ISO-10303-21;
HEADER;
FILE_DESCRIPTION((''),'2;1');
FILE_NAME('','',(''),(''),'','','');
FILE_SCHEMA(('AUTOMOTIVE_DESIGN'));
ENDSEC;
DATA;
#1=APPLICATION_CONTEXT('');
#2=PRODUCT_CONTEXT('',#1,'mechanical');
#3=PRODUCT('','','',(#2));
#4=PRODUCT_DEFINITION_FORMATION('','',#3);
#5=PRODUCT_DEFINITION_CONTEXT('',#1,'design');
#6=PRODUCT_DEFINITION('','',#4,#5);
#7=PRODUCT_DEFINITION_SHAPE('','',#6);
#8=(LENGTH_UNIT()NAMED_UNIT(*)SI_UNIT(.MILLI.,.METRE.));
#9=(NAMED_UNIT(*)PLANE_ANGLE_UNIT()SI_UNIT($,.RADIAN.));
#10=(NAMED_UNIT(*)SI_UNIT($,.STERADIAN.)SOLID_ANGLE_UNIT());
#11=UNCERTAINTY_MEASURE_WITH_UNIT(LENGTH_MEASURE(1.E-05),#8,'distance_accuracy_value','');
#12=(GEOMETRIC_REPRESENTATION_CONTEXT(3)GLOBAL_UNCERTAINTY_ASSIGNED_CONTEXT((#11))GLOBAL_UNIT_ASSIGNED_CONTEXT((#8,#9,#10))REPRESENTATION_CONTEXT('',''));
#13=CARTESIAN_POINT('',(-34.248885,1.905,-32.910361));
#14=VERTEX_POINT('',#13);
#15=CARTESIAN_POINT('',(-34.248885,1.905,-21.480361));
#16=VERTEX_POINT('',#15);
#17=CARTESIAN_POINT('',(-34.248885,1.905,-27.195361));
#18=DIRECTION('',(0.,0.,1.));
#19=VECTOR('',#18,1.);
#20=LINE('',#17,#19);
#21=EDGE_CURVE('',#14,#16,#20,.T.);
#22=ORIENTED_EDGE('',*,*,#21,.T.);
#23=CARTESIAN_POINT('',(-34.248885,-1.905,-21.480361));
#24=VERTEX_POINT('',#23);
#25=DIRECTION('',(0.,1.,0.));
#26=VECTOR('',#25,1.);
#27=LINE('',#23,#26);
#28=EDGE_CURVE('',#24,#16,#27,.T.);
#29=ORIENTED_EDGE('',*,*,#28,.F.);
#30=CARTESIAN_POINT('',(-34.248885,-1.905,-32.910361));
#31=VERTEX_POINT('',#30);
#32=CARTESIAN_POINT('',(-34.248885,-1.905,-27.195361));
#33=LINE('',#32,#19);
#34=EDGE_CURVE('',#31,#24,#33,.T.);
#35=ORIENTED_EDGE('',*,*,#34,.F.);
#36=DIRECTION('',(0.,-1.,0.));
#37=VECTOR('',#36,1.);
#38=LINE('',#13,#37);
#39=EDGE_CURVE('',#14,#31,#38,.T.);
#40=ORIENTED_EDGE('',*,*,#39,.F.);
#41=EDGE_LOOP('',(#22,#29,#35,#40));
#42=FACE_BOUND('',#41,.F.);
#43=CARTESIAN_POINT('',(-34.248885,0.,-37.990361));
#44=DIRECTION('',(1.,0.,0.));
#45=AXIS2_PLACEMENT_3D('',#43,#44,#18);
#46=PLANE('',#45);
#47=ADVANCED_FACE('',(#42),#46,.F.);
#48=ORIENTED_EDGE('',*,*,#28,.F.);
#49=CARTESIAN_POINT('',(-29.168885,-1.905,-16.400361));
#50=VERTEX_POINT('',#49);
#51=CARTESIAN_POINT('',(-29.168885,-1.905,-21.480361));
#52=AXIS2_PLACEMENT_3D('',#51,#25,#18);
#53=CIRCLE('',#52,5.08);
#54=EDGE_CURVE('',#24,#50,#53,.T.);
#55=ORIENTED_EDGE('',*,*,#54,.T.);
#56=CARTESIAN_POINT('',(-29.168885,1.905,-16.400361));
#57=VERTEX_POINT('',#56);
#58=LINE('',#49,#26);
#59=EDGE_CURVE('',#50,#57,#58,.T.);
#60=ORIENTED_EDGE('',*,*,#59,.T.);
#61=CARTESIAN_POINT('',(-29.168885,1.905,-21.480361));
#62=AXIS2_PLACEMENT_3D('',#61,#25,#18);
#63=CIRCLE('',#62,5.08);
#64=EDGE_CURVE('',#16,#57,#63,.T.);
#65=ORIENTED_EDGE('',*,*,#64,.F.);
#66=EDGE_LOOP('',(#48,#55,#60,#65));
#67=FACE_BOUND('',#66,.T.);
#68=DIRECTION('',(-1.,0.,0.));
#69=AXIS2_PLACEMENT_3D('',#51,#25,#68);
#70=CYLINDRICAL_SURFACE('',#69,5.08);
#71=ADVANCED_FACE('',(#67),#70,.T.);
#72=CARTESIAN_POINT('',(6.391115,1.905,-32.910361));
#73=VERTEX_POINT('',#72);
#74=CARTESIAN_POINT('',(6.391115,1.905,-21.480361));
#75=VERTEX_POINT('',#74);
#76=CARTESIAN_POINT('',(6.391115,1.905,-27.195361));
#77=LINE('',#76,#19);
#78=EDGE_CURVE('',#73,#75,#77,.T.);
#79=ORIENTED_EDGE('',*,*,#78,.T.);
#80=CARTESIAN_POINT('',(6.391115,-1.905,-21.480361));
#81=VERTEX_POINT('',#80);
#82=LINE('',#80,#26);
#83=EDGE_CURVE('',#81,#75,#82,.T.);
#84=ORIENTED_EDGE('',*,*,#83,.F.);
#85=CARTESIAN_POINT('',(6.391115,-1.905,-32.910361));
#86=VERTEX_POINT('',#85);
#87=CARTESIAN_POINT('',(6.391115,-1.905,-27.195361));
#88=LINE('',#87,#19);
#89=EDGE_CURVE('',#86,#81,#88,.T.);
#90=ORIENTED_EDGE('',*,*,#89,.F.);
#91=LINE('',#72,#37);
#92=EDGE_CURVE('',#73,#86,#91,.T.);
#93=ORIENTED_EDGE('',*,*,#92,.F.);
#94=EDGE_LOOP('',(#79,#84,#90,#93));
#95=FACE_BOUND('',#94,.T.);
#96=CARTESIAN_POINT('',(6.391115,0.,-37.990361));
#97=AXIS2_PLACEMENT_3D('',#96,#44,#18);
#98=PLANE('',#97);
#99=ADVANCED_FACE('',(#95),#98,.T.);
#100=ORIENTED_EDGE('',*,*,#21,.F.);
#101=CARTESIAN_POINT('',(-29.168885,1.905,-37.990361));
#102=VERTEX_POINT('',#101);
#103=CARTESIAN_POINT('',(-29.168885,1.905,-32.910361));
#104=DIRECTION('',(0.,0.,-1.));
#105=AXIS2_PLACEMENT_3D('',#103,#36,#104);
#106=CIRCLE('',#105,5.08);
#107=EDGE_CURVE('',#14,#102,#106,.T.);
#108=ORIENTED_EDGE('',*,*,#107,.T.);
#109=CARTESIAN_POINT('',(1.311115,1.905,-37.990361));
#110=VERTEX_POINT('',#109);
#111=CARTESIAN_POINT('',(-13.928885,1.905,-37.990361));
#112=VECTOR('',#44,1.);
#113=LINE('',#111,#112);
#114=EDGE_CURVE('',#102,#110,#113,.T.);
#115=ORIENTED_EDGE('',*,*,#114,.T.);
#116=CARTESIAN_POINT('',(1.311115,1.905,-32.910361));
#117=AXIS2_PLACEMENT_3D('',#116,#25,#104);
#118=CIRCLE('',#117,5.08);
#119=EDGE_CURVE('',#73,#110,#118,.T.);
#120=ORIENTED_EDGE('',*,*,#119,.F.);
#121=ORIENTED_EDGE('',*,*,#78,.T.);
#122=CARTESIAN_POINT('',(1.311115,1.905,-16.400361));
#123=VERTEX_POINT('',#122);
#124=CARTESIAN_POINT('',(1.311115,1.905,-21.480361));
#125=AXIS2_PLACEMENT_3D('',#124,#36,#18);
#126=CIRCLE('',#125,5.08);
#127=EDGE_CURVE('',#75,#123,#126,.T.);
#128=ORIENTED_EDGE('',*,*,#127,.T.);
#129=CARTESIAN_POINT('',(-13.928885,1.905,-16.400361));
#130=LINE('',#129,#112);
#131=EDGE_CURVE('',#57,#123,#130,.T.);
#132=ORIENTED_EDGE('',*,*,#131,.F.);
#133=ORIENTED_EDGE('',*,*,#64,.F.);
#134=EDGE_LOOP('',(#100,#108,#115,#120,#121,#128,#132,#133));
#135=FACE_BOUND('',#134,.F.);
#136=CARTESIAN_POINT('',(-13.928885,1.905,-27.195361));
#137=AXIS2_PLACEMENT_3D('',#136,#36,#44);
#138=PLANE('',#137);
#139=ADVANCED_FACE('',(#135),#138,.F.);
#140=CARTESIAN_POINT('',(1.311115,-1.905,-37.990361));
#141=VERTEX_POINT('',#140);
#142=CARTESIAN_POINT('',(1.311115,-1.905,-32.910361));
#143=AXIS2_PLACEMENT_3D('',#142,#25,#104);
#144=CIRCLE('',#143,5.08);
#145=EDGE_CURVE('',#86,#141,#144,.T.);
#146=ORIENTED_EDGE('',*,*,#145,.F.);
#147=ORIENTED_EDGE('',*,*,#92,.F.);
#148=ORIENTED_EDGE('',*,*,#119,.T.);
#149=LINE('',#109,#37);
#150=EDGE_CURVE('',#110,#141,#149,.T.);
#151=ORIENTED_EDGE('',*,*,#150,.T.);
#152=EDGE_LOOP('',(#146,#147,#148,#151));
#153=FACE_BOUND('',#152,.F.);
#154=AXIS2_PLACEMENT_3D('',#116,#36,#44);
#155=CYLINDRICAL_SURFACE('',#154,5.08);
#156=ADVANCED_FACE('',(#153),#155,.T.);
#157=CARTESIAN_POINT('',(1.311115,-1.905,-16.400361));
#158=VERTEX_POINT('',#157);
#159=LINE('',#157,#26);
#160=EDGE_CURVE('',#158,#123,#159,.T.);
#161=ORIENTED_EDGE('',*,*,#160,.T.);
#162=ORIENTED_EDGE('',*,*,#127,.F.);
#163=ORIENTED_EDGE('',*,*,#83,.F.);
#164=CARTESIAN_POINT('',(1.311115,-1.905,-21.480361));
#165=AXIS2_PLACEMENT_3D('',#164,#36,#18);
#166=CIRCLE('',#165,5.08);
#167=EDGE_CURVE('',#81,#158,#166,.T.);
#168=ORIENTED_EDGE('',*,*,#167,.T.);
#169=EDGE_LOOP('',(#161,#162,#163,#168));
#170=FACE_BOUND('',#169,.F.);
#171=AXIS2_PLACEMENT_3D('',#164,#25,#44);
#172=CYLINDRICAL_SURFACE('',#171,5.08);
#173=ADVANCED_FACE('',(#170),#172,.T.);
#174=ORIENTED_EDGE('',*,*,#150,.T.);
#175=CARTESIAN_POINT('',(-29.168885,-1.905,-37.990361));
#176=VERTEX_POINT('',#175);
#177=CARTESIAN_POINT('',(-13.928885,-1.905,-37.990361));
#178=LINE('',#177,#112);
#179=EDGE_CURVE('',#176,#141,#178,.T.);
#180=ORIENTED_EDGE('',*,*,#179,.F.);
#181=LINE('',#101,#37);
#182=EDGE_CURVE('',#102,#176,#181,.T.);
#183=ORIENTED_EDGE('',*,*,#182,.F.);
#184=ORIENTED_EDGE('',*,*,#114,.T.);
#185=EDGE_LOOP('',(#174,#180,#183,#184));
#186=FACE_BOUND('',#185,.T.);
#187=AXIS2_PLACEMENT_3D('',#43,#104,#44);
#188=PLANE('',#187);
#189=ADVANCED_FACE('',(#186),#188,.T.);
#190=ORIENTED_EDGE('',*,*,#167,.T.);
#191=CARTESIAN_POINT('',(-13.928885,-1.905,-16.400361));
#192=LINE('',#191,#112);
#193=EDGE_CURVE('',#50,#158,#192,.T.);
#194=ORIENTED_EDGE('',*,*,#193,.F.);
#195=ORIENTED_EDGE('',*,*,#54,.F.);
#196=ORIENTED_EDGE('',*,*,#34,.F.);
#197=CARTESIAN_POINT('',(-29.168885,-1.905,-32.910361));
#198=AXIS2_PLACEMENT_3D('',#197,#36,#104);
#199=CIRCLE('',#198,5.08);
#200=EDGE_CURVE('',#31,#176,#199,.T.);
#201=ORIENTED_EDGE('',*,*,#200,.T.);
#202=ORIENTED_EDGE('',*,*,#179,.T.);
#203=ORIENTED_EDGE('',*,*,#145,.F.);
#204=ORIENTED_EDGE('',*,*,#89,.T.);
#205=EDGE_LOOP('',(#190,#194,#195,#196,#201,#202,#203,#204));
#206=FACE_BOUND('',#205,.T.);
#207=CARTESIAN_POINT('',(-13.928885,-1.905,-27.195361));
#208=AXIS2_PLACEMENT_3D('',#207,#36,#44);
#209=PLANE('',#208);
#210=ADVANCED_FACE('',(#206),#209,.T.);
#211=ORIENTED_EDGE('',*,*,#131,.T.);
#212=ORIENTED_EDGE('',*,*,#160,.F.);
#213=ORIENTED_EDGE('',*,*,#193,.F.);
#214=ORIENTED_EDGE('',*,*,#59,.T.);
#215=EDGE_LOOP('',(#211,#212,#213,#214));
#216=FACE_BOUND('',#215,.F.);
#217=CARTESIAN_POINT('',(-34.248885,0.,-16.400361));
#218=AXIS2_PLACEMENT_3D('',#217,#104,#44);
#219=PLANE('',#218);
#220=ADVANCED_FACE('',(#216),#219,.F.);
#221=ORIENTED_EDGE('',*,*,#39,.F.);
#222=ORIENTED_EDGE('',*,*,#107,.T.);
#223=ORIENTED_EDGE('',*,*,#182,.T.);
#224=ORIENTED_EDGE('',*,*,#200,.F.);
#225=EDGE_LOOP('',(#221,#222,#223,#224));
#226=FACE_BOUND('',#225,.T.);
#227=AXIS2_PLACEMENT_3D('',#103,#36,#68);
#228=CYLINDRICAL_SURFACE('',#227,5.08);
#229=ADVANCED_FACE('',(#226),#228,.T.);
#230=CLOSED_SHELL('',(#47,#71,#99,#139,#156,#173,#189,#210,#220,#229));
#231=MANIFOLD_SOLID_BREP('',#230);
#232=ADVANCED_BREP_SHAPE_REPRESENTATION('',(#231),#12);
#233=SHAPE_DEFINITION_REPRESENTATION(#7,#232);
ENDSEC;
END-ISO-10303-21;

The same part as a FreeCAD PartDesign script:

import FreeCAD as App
import Part
import Sketcher
from FreeCAD import Vector
Q = App.Units.Quantity


def edges_at(feature, points):
    """Names of the edges that pass closest to the given points."""
    edges = feature.Shape.Edges
    near = lambda p: min(range(len(edges)), key=lambda i: edges[i].distToShape(Part.Vertex(*p))[0])
    return sorted({f"Edge{near(p) + 1}" for p in points})


def add_polygon(sketch, points):
    """Adds a closed chain of lines whose ends are joined by coincident constraints."""
    first, n = sketch.GeometryCount, len(points)
    for a, b in zip(points, points[1:] + points[:1]):
        sketch.addGeometry(Part.LineSegment(App.Vector(*a, 0), App.Vector(*b, 0)), False)
    for i in range(n):
        sketch.addConstraint(Sketcher.Constraint("Coincident", first + i, 2, first + (i + 1) % n, 1))

doc = App.newDocument("Part")
body = doc.addObject("PartDesign::Body", "Body")

# Sketch on XZ plane
sketch1 = body.newObject("Sketcher::SketchObject", "Sketch")
sketch1.AttachmentSupport = (doc.getObject("XZ_Plane"), [""])
sketch1.MapMode = "FlatFace"
add_polygon(sketch1, [(-34.248885, -16.400361), (-34.248885, -37.990361), (6.391115, -37.990361), (6.391115, -16.400361)])  # lines 0-3
sketch1.addConstraint([
    Sketcher.Constraint("Vertical", 0),
    Sketcher.Constraint("Horizontal", 1),
    Sketcher.Constraint("Vertical", 2),
    Sketcher.Constraint("Horizontal", 3),
    Sketcher.Constraint("DistanceX", 1, 1, 1, 2, Q("1.6 in")),
    Sketcher.Constraint("DistanceY", 0, 2, 0, 1, Q("0.85 in")),
    Sketcher.Constraint("DistanceY", 0, 2, -1, 1, Q("37.990361 mm")),
    Sketcher.Constraint("DistanceX", 0, 2, -1, 1, Q("34.248885 mm")),
])
pad1 = body.newObject("PartDesign::Pad", "Pad")
pad1.Profile = sketch1
pad1.Length = Q("0.15 in")
pad1.Midplane = True
doc.recompute()

fillet = body.newObject("PartDesign::Fillet", "Fillet")
fillet.Base = (pad1, edges_at(pad1, [
    (-34.249, 0, -16.4),
    (6.391, 0, -16.4),
    (-34.249, 0, -37.99),
    (6.391, 0, -37.99),
]))
fillet.Radius = Q("0.2 in")

doc.recompute()
